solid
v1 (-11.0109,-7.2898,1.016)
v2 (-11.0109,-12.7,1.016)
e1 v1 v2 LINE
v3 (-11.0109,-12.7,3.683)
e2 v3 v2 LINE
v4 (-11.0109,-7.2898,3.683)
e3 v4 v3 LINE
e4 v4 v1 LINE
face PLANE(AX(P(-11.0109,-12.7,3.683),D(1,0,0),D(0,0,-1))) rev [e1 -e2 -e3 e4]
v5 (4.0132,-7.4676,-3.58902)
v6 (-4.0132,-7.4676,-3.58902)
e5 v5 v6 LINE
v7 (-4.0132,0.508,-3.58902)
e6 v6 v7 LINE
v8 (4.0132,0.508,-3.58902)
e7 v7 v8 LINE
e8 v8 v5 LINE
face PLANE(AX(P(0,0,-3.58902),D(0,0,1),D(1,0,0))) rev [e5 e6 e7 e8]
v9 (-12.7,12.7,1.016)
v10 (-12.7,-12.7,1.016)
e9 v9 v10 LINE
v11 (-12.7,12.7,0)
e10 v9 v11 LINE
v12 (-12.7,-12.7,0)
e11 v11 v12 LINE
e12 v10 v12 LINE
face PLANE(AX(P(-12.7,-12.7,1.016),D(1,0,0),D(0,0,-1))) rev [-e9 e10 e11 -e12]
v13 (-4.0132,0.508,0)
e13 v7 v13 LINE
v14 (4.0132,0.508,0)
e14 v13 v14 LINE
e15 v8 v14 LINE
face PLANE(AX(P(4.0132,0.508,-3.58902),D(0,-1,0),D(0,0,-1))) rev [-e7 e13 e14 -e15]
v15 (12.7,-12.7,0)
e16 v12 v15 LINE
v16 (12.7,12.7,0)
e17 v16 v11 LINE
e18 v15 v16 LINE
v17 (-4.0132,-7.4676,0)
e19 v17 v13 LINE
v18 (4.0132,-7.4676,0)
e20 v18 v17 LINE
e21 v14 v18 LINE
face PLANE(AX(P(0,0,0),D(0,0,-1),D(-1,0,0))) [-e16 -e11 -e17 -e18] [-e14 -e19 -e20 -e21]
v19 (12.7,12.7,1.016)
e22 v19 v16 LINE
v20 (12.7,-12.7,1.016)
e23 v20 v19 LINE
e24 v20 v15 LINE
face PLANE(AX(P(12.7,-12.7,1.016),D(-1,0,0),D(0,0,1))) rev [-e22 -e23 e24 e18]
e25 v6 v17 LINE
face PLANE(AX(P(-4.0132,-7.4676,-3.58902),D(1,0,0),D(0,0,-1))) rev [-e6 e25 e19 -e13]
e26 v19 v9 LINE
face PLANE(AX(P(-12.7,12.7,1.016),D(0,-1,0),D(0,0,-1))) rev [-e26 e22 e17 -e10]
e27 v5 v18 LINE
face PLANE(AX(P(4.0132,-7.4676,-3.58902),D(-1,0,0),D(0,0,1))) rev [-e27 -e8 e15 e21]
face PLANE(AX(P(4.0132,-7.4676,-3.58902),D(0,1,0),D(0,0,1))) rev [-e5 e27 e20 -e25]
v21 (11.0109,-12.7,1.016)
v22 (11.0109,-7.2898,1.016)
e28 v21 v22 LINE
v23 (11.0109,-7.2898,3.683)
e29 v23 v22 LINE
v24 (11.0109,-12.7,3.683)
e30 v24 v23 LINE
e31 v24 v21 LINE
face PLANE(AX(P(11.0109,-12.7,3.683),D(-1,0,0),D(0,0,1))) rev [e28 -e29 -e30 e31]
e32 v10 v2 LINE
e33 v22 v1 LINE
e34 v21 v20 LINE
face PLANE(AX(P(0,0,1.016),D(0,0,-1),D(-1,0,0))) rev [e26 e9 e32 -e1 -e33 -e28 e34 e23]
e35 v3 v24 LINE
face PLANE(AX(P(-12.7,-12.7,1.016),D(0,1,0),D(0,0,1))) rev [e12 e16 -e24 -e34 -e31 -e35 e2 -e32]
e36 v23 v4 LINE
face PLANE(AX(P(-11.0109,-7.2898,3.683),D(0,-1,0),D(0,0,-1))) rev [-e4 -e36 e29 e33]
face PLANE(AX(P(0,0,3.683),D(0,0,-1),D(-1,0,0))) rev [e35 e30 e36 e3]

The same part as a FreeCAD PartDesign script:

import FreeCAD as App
import Part
import Sketcher

V = App.Vector
Q = App.Units.Quantity


def add_polygon(sketch, points):
    """Adds a closed chain of lines whose ends are joined by coincident constraints."""
    first, n = sketch.GeometryCount, len(points)
    for a, b in zip(points, points[1:] + points[:1]):
        sketch.addGeometry(Part.LineSegment(App.Vector(*a, 0), App.Vector(*b, 0)), False)
    for i in range(n):
        sketch.addConstraint(Sketcher.Constraint("Coincident", first + i, 2, first + (i + 1) % n, 1))

doc = App.newDocument("Part")
body = doc.addObject("PartDesign::Body", "Body")

sketch1 = body.newObject("Sketcher::SketchObject", "Sketch")
sketch1.AttachmentSupport = (doc.getObject("XY_Plane"), [""])
sketch1.MapMode = "FlatFace"
add_polygon(sketch1, [(-13, 13), (-13, -13), (13, -13), (13, 13)])
sketch1.addConstraint([
    Sketcher.Constraint("Vertical", 0),
    Sketcher.Constraint("Horizontal", 1),
    Sketcher.Constraint("Vertical", 2),
    Sketcher.Constraint("Horizontal", 3),
    Sketcher.Constraint("Symmetric", 0, 2, 2, 2, -1, 1),
    Sketcher.Constraint("Equal", 3, 0),
    Sketcher.Constraint("DistanceX", 1, 1, 1, 2, Q("1 in")),
])
pad1 = body.newObject("PartDesign::Pad", "Pad")
pad1.Profile = sketch1
pad1.Length = Q("0.04 in")

sketch2 = body.newObject("Sketcher::SketchObject", "Sketch001")
sketch2.AttachmentSupport = (doc.getObject("XY_Plane"), [""])
sketch2.MapMode = "FlatFace"
sketch2.AttachmentOffset = App.Placement(V(0, 0, 0.04 * 25.4), App.Rotation())
add_polygon(sketch2, [(-11, -7), (-11, -13), (11, -13), (11, -7)])
sketch2.addConstraint([
    Sketcher.Constraint("Vertical", 0),
    Sketcher.Constraint("Horizontal", 1),
    Sketcher.Constraint("Vertical", 2),
    Sketcher.Constraint("Horizontal", 3),
    Sketcher.Constraint("DistanceY", 0, 2, -1, 1, Q("0.5 in")),
    Sketcher.Constraint("DistanceX", 1, 1, 1, 2, Q("0.867 in")),
    Sketcher.Constraint("DistanceY", 0, 2, 0, 1, Q("0.213 in")),
    Sketcher.Constraint("DistanceX", 0, 2, -1, 1, Q("0.4335 in")),
])
pad2 = body.newObject("PartDesign::Pad", "Pad001")
pad2.Profile = sketch2
pad2.Length = Q("0.105 in")

sketch3 = body.newObject("Sketcher::SketchObject", "Sketch002")
sketch3.AttachmentSupport = (doc.getObject("XY_Plane"), [""])
sketch3.MapMode = "FlatFace"
add_polygon(sketch3, [(4, 1), (4, -7), (-4, -7), (-4, 1)])
sketch3.addConstraint([
    Sketcher.Constraint("Vertical", 0),
    Sketcher.Constraint("Horizontal", 1),
    Sketcher.Constraint("Vertical", 2),
    Sketcher.Constraint("Horizontal", 3),
    Sketcher.Constraint("DistanceX", 1, 2, 1, 1, Q("0.316 in")),
    Sketcher.Constraint("DistanceY", 0, 2, 0, 1, Q("0.314 in")),
    Sketcher.Constraint("DistanceY", -1, 1, 2, 2, Q("0.02 in")),
    Sketcher.Constraint("DistanceX", -1, 1, 0, 2, Q("0.158 in")),
])
pad3 = body.newObject("PartDesign::Pad", "Pad002")
pad3.Profile = sketch3
pad3.Length = Q("0.1413 in")
pad3.Reversed = True

doc.recompute()
